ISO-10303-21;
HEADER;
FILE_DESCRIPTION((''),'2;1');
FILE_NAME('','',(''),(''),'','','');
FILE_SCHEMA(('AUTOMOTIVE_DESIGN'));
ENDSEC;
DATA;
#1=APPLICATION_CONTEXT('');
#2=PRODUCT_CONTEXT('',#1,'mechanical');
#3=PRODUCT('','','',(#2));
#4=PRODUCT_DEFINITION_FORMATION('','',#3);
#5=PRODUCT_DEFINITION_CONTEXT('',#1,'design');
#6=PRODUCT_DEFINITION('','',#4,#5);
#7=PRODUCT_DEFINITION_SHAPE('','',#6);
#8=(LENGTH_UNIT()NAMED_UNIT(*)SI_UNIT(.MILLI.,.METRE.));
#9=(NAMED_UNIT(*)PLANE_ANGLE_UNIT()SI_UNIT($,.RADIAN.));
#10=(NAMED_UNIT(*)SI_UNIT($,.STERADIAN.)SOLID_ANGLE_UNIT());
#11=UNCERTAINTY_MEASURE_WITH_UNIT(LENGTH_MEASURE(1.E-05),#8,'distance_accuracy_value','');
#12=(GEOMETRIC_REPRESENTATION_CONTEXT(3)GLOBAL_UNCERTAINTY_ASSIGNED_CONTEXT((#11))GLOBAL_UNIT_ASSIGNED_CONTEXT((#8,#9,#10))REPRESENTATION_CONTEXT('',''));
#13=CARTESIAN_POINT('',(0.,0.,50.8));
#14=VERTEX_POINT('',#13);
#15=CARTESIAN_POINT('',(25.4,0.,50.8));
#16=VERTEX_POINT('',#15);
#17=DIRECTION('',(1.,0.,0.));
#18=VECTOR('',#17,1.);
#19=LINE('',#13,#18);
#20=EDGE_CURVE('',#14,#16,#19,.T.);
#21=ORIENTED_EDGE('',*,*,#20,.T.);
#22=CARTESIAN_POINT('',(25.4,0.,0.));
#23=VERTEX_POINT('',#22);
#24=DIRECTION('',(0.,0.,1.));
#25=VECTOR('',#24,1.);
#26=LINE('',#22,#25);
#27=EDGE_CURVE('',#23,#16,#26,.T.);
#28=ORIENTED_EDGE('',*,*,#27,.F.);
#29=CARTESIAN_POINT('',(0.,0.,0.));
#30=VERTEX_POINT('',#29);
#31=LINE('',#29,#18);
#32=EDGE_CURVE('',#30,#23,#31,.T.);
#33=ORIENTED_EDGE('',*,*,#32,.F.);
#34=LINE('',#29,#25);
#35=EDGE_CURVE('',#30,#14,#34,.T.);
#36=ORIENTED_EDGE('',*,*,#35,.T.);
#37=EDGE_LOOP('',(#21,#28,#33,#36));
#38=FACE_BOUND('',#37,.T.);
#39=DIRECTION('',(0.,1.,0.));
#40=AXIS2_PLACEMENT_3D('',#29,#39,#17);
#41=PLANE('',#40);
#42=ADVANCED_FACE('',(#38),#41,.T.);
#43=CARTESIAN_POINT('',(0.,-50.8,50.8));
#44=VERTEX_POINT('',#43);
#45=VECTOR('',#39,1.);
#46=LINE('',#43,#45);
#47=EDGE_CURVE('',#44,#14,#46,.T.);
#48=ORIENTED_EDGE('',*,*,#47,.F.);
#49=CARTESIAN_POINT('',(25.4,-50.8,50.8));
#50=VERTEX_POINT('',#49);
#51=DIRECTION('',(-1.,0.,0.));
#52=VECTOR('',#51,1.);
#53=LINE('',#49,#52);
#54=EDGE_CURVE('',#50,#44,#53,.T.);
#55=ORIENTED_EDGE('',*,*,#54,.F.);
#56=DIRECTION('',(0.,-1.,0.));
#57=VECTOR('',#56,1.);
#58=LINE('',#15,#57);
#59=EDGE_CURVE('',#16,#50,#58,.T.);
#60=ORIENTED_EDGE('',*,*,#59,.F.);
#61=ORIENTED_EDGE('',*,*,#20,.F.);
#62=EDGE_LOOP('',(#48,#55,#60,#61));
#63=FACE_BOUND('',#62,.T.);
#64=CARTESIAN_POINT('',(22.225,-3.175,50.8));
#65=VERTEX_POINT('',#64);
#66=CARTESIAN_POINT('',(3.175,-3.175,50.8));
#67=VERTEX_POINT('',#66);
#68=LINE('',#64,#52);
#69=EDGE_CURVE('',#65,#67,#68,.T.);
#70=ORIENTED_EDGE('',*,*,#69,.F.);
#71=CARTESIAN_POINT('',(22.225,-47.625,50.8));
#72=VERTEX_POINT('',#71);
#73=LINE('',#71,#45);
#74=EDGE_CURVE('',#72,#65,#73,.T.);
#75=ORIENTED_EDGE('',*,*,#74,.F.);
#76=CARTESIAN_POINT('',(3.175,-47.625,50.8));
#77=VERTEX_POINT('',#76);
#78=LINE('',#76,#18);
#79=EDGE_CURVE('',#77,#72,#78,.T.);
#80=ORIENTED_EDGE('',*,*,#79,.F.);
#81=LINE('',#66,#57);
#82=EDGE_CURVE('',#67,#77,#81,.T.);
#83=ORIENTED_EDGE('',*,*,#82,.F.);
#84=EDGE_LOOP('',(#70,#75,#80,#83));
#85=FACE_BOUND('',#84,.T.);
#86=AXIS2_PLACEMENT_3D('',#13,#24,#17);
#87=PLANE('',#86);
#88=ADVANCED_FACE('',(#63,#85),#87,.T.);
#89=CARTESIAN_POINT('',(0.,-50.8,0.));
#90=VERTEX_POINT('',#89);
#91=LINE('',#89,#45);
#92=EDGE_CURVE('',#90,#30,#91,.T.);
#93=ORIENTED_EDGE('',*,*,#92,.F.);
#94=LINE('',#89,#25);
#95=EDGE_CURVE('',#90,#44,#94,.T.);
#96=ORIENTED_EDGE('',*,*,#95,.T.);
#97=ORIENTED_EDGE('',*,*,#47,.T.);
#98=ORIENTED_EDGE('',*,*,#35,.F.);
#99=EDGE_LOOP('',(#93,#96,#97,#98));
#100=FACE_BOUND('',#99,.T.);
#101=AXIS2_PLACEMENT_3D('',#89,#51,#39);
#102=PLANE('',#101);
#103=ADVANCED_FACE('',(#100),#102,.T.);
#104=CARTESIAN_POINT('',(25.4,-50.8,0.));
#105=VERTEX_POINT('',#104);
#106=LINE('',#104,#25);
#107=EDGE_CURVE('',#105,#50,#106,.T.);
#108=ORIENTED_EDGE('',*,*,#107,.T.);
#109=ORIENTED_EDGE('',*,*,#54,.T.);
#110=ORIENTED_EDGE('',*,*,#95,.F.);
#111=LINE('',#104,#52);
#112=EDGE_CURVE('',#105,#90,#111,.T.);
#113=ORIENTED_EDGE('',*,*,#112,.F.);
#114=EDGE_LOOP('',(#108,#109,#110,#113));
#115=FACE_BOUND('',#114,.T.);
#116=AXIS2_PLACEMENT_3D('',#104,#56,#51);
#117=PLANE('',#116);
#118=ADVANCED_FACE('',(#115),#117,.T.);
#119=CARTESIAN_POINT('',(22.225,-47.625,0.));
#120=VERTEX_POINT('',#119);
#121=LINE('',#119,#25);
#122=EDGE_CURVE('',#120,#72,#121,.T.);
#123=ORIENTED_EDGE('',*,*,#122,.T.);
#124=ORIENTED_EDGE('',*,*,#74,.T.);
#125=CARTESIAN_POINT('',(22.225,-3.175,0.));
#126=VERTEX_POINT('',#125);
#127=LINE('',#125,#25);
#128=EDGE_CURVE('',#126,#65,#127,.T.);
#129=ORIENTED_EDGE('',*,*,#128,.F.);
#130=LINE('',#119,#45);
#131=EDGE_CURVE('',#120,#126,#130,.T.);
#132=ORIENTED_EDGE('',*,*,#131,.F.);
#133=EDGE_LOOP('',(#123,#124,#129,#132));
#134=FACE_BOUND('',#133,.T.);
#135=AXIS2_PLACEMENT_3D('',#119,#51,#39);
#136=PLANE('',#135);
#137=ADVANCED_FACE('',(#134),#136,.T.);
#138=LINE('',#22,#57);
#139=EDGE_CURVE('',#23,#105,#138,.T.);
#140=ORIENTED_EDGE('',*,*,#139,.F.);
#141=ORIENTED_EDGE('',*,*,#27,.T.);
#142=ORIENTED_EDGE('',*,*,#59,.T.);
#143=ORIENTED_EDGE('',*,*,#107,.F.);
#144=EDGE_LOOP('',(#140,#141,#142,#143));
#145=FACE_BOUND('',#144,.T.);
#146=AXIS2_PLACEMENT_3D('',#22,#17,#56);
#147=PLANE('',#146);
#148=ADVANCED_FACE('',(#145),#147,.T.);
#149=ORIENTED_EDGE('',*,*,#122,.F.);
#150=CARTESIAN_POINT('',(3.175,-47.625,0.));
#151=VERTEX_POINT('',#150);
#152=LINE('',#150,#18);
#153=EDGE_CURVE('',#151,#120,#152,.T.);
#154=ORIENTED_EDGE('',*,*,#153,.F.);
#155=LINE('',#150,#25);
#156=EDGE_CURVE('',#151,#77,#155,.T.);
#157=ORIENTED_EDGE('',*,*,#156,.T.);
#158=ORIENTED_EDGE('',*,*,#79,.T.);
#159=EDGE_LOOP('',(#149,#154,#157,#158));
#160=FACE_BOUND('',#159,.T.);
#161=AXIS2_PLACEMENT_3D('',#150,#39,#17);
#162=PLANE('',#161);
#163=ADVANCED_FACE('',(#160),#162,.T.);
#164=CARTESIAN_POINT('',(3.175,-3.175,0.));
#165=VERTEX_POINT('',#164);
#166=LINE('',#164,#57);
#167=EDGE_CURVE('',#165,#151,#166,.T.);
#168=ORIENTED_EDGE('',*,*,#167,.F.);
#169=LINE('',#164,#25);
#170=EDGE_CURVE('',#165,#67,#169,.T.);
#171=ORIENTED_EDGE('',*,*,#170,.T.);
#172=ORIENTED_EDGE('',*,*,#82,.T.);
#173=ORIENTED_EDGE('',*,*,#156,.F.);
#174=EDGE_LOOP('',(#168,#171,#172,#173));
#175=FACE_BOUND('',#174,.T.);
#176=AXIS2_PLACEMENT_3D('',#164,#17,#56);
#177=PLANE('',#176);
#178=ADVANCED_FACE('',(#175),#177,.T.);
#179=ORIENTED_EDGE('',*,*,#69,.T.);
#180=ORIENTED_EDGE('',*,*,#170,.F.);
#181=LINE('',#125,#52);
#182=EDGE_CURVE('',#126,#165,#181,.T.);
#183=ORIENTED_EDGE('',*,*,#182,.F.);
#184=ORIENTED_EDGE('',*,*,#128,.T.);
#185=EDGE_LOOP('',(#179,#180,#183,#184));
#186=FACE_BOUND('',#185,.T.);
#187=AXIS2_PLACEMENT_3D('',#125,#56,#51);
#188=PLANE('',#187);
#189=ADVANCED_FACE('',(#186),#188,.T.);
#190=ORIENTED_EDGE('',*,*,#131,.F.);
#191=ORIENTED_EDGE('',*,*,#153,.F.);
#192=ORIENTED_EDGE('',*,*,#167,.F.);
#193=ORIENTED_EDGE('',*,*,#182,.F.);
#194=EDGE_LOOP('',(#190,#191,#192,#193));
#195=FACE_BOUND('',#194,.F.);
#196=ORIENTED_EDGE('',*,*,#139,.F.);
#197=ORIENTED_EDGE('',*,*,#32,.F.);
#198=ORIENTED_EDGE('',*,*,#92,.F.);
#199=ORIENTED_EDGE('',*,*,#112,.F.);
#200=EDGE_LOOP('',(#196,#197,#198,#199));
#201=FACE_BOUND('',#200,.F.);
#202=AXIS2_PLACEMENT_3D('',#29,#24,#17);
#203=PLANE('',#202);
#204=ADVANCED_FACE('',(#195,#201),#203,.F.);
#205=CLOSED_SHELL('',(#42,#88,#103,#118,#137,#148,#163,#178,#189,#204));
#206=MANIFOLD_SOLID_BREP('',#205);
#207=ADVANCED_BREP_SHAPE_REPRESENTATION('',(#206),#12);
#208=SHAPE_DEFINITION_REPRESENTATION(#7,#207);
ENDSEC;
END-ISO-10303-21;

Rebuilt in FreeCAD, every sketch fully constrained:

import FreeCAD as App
import Part
import Sketcher
from FreeCAD import Vector
Q = App.Units.Quantity

doc = App.newDocument("Part")
body = doc.addObject("PartDesign::Body", "Body")

# Sketch on XY plane
sketch1 = doc.addObject("Sketcher::SketchObject", "Sketch")
body.addObject(sketch1)
sketch1.AttachmentSupport = (doc.XY_Plane, [""])
sketch1.MapMode = "FlatFace"
sketch1.addGeometry(Part.LineSegment(Vector(25.4, 0, 0), Vector(0, 0, 0)), False)
sketch1.addGeometry(Part.LineSegment(Vector(0, 0, 0), Vector(0, -50.8, 0)), False)
sketch1.addGeometry(Part.LineSegment(Vector(0, -50.8, 0), Vector(25.4, -50.8, 0)), False)
sketch1.addGeometry(Part.LineSegment(Vector(25.4, -50.8, 0), Vector(25.4, 0, 0)), False)
sketch1.addGeometry(Part.LineSegment(Vector(3.175, -3.175, 0), Vector(22.225, -3.175, 0)), False)
sketch1.addGeometry(Part.LineSegment(Vector(22.225, -3.175, 0), Vector(22.225, -47.625, 0)), False)
sketch1.addGeometry(Part.LineSegment(Vector(22.225, -47.625, 0), Vector(3.175, -47.625, 0)), False)
sketch1.addGeometry(Part.LineSegment(Vector(3.175, -47.625, 0), Vector(3.175, -3.175, 0)), False)
sketch1.addConstraint(Sketcher.Constraint("Coincident", 0, 2, 1, 1))
sketch1.addConstraint(Sketcher.Constraint("Coincident", 1, 2, 2, 1))
sketch1.addConstraint(Sketcher.Constraint("Coincident", 2, 2, 3, 1))
sketch1.addConstraint(Sketcher.Constraint("Coincident", 3, 2, 0, 1))
sketch1.addConstraint(Sketcher.Constraint("Coincident", 4, 2, 5, 1))
sketch1.addConstraint(Sketcher.Constraint("Coincident", 5, 2, 6, 1))
sketch1.addConstraint(Sketcher.Constraint("Coincident", 6, 2, 7, 1))
sketch1.addConstraint(Sketcher.Constraint("Coincident", 7, 2, 4, 1))
sketch1.addConstraint(Sketcher.Constraint("Horizontal", 0))
sketch1.addConstraint(Sketcher.Constraint("Vertical", 1))
sketch1.addConstraint(Sketcher.Constraint("Horizontal", 2))
sketch1.addConstraint(Sketcher.Constraint("Vertical", 3))
sketch1.addConstraint(Sketcher.Constraint("Horizontal", 4))
sketch1.addConstraint(Sketcher.Constraint("Vertical", 5))
sketch1.addConstraint(Sketcher.Constraint("Horizontal", 6))
sketch1.addConstraint(Sketcher.Constraint("Vertical", 7))
sketch1.addConstraint(Sketcher.Constraint("Coincident", 0, 2, -1, 1))
sketch1.addConstraint(Sketcher.Constraint("DistanceX", 0, 2, 0, 1, Q("1 in")))
sketch1.addConstraint(Sketcher.Constraint("DistanceY", 1, 2, 1, 1, Q("2 in")))
sketch1.addConstraint(Sketcher.Constraint("DistanceY", 4, 2, -1, 1, Q("0.125 in")))
sketch1.addConstraint(Sketcher.Constraint("DistanceX", -1, 1, 6, 2, Q("0.125 in")))
sketch1.addConstraint(Sketcher.Constraint("DistanceX", 4, 2, 3, 2, Q("0.125 in")))
sketch1.addConstraint(Sketcher.Constraint("DistanceY", 2, 2, 5, 2, Q("0.125 in")))
pad1 = doc.addObject("PartDesign::Pad", "Pad")
body.addObject(pad1)
pad1.Profile = sketch1
pad1.Length = Q("2 in")

doc.recompute()
